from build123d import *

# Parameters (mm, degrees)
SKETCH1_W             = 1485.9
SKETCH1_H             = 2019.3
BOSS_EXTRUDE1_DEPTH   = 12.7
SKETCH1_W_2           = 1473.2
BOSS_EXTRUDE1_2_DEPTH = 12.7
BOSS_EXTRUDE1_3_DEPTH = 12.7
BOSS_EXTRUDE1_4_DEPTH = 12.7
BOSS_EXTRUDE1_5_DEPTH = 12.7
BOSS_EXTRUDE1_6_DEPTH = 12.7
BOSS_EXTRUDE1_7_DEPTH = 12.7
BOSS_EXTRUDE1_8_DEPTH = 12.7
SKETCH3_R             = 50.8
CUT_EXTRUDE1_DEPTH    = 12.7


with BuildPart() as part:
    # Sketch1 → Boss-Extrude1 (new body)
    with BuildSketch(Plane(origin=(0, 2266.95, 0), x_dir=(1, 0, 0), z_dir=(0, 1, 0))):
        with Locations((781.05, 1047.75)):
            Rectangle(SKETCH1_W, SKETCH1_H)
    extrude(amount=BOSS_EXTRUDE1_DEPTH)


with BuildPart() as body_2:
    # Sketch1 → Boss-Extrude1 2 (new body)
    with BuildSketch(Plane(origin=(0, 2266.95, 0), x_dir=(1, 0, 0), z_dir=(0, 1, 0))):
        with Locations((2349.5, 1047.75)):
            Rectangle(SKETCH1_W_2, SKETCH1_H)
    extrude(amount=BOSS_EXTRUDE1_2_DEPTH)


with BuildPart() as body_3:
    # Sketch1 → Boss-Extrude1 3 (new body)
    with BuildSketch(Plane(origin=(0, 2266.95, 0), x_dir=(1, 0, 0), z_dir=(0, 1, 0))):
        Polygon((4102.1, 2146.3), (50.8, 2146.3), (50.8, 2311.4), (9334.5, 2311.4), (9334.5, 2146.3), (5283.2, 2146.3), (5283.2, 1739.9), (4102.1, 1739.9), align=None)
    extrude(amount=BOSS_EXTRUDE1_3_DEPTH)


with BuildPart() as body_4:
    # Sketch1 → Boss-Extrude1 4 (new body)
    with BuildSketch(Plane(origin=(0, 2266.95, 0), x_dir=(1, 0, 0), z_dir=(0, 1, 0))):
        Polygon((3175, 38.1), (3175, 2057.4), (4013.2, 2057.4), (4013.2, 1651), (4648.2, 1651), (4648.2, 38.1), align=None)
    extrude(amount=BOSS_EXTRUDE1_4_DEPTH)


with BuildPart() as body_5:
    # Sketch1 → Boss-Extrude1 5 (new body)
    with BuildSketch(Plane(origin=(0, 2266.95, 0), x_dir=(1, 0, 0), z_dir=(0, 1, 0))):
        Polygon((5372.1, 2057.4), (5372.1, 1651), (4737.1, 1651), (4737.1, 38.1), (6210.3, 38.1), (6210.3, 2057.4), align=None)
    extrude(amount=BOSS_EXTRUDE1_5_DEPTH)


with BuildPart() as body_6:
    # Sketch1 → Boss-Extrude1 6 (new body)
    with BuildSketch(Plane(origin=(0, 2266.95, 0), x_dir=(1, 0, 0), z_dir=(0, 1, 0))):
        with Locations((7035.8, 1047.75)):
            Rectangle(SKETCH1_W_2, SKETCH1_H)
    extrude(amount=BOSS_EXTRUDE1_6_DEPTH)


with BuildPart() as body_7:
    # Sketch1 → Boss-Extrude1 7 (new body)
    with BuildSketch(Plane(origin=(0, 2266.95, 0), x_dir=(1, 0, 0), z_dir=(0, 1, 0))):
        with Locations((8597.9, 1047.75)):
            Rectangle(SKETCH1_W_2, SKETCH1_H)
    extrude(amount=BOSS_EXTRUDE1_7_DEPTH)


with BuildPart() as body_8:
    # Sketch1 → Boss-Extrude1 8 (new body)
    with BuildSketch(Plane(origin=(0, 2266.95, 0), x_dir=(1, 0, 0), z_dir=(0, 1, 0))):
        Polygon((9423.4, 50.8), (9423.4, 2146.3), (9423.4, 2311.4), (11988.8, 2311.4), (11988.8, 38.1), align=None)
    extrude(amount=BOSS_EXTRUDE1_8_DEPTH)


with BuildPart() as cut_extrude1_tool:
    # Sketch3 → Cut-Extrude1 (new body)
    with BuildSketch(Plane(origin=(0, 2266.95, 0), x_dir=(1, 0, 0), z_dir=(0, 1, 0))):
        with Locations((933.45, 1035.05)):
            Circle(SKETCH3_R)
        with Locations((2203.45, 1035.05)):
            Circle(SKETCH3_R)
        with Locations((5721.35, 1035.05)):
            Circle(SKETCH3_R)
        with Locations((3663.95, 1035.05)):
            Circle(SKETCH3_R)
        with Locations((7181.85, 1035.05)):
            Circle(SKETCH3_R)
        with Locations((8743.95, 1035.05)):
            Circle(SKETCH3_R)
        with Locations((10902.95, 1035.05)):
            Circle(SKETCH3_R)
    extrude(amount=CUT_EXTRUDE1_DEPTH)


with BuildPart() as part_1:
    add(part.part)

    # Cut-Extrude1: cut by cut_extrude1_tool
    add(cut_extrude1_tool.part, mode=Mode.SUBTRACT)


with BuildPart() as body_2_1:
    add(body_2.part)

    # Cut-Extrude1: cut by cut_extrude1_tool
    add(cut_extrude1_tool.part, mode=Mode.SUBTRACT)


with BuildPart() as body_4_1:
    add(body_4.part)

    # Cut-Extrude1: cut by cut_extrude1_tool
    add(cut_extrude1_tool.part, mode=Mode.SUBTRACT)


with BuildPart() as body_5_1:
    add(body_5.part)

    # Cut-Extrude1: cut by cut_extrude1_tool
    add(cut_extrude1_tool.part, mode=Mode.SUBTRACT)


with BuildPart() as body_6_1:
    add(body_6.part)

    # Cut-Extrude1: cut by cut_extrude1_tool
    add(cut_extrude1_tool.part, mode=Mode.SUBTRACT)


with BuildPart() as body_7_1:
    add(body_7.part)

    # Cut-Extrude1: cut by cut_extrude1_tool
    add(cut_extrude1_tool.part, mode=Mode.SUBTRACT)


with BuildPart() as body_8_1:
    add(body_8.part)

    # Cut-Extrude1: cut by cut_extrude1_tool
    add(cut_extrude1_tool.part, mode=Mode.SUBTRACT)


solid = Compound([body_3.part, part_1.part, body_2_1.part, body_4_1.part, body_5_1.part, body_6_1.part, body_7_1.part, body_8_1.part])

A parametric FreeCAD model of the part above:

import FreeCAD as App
import Part
import Sketcher

V = App.Vector
Q = App.Units.Quantity


def add_polygon(sketch, points):
    """Adds a closed chain of lines whose ends are joined by coincident constraints."""
    first, n = sketch.GeometryCount, len(points)
    for a, b in zip(points, points[1:] + points[:1]):
        sketch.addGeometry(Part.LineSegment(App.Vector(*a, 0), App.Vector(*b, 0)), False)
    for i in range(n):
        sketch.addConstraint(Sketcher.Constraint("Coincident", first + i, 2, first + (i + 1) % n, 1))

doc = App.newDocument("Part")
body = doc.addObject("PartDesign::Body", "Body")

sketch1 = body.newObject("Sketcher::SketchObject", "Sketch")
sketch1.AttachmentSupport = (doc.getObject("XZ_Plane"), [""])
sketch1.MapMode = "FlatFace"
sketch1.AttachmentOffset = App.Placement(V(0, 0, -89.25 * 25.4), App.Rotation())
add_polygon(sketch1, [(38.1, -2057.4), (38.1, -38.1), (1524, -38.1), (1524, -2057.4)])
sketch1.addConstraint(Sketcher.Constraint("Vertical", 0))
sketch1.addConstraint(Sketcher.Constraint("Horizontal", 1))
sketch1.addConstraint(Sketcher.Constraint("Vertical", 2))
sketch1.addConstraint(Sketcher.Constraint("Horizontal", 3))
sketch1.addConstraint(Sketcher.Constraint("DistanceX", 1, 1, 1, 2, Q("58.5 in")))
sketch1.addConstraint(Sketcher.Constraint("DistanceY", 0, 1, 0, 2, Q("79.5 in")))
sketch1.addConstraint(Sketcher.Constraint("DistanceX", -1, 1, 1, 2, Q("60 in")))
sketch1.addConstraint(Sketcher.Constraint("DistanceY", 2, 2, -1, 1, Q("81 in")))
pad1 = body.newObject("PartDesign::Pad", "Pad")
pad1.Profile = sketch1
pad1.Length = Q("0.5 in")
pad1.Reversed = True
body2 = doc.addObject("PartDesign::Body", "Body001")

sketch2 = body2.newObject("Sketcher::SketchObject", "Sketch001")
sketch2.AttachmentSupport = (doc.getObject("XZ_Plane001"), [""])
sketch2.MapMode = "FlatFace"
sketch2.AttachmentOffset = App.Placement(V(0, 0, -89.25 * 25.4), App.Rotation())
add_polygon(sketch2, [(1612.9, -2057.4), (1612.9, -38.1), (3086.1, -38.1), (3086.1, -2057.4)])
sketch2.addConstraint(Sketcher.Constraint("Vertical", 0))
sketch2.addConstraint(Sketcher.Constraint("Horizontal", 1))
sketch2.addConstraint(Sketcher.Constraint("Vertical", 2))
sketch2.addConstraint(Sketcher.Constraint("Horizontal", 3))
sketch2.addConstraint(Sketcher.Constraint("DistanceX", 1, 1, 1, 2, Q("58 in")))
sketch2.addConstraint(Sketcher.Constraint("DistanceY", 0, 1, 0, 2, Q("79.5 in")))
sketch2.addConstraint(Sketcher.Constraint("DistanceY", 2, 2, -1, 1, Q("81 in")))
sketch2.addConstraint(Sketcher.Constraint("DistanceX", -1, 1, 0, 2, Q("63.5 in")))
pad2 = body2.newObject("PartDesign::Pad", "Pad001")
pad2.Profile = sketch2
pad2.Length = Q("0.5 in")
pad2.Reversed = True
body3 = doc.addObject("PartDesign::Body", "Body002")

sketch3 = body3.newObject("Sketcher::SketchObject", "Sketch002")
sketch3.AttachmentSupport = (doc.getObject("XZ_Plane002"), [""])
sketch3.MapMode = "FlatFace"
sketch3.AttachmentOffset = App.Placement(V(0, 0, -89.25 * 25.4), App.Rotation())
add_polygon(sketch3, [(50.8, -2146.3), (4102.1, -2146.3), (4102.1, -1739.9), (5283.2, -1739.9), (5283.2, -2146.3), (9334.5, -2146.3), (9334.5, -2311.4), (50.8, -2311.4)])
sketch3.addConstraint(Sketcher.Constraint("Horizontal", 0))
sketch3.addConstraint(Sketcher.Constraint("Vertical", 1))
sketch3.addConstraint(Sketcher.Constraint("Horizontal", 2))
sketch3.addConstraint(Sketcher.Constraint("Vertical", 3))
sketch3.addConstraint(Sketcher.Constraint("Horizontal", 4))
sketch3.addConstraint(Sketcher.Constraint("Vertical", 5))
sketch3.addConstraint(Sketcher.Constraint("Horizontal", 6))
sketch3.addConstraint(Sketcher.Constraint("Vertical", 7))
sketch3.addConstraint(Sketcher.Constraint("Horizontal", 0, 2, 3, 2))
sketch3.addConstraint(Sketcher.Constraint("Equal", 0, 4))
sketch3.addConstraint(Sketcher.Constraint("DistanceY", 1, 1, 1, 2, Q("16 in")))
sketch3.addConstraint(Sketcher.Constraint("DistanceX", 0, 1, 0, 2, Q("159.5 in")))
sketch3.addConstraint(Sketcher.Constraint("DistanceX", 2, 1, 2, 2, Q("46.5 in")))
sketch3.addConstraint(Sketcher.Constraint("DistanceY", 5, 2, 5, 1, Q("6.5 in")))
sketch3.addConstraint(Sketcher.Constraint("DistanceX", -1, 1, 2, 2, Q("208 in")))
sketch3.addConstraint(Sketcher.Constraint("DistanceY", 5, 2, -1, 1, Q("91 in")))
pad3 = body3.newObject("PartDesign::Pad", "Pad002")
pad3.Profile = sketch3
pad3.Length = Q("0.5 in")
pad3.Reversed = True
body4 = doc.addObject("PartDesign::Body", "Body003")

sketch4 = body4.newObject("Sketcher::SketchObject", "Sketch003")
sketch4.AttachmentSupport = (doc.getObject("XZ_Plane003"), [""])
sketch4.MapMode = "FlatFace"
sketch4.AttachmentOffset = App.Placement(V(0, 0, -89.25 * 25.4), App.Rotation())
add_polygon(sketch4, [(3175, -2057.4), (3175, -38.1), (4648.2, -38.1), (4648.2, -1651), (4013.2, -1651), (4013.2, -2057.4)])
sketch4.addConstraint(Sketcher.Constraint("Vertical", 0))
sketch4.addConstraint(Sketcher.Constraint("Horizontal", 1))
sketch4.addConstraint(Sketcher.Constraint("Vertical", 2))
sketch4.addConstraint(Sketcher.Constraint("Horizontal", 3))
sketch4.addConstraint(Sketcher.Constraint("Vertical", 4))
sketch4.addConstraint(Sketcher.Constraint("Horizontal", 5))
sketch4.addConstraint(Sketcher.Constraint("DistanceX", 1, 1, 1, 2, Q("58 in")))
sketch4.addConstraint(Sketcher.Constraint("DistanceX", 3, 2, 3, 1, Q("25 in")))
sketch4.addConstraint(Sketcher.Constraint("DistanceY", 4, 2, 4, 1, Q("16 in")))
sketch4.addConstraint(Sketcher.Constraint("DistanceY", 0, 1, 0, 2, Q("79.5 in")))
sketch4.addConstraint(Sketcher.Constraint("DistanceX", -1, 1, 0, 2, Q("125 in")))
sketch4.addConstraint(Sketcher.Constraint("DistanceY", 2, 2, -1, 1, Q("65 in")))
pad4 = body4.newObject("PartDesign::Pad", "Pad003")
pad4.Profile = sketch4
pad4.Length = Q("0.5 in")
pad4.Reversed = True
body5 = doc.addObject("PartDesign::Body", "Body004")

sketch5 = body5.newObject("Sketcher::SketchObject", "Sketch004")
sketch5.AttachmentSupport = (doc.getObject("XZ_Plane004"), [""])
sketch5.MapMode = "FlatFace"
sketch5.AttachmentOffset = App.Placement(V(0, 0, -89.25 * 25.4), App.Rotation())
add_polygon(sketch5, [(5372.1, -2057.4), (5372.1, -1651), (4737.1, -1651), (4737.1, -38.1), (6210.3, -38.1), (6210.3, -2057.4)])
sketch5.addConstraint(Sketcher.Constraint("Vertical", 0))
sketch5.addConstraint(Sketcher.Constraint("Horizontal", 1))
sketch5.addConstraint(Sketcher.Constraint("Vertical", 2))
sketch5.addConstraint(Sketcher.Constraint("Horizontal", 3))
sketch5.addConstraint(Sketcher.Constraint("Vertical", 4))
sketch5.addConstraint(Sketcher.Constraint("Horizontal", 5))
sketch5.addConstraint(Sketcher.Constraint("DistanceX", 1, 2, 1, 1, Q("25 in")))
sketch5.addConstraint(Sketcher.Constraint("DistanceX", 3, 1, 3, 2, Q("58 in")))
sketch5.addConstraint(Sketcher.Constraint("DistanceY", 0, 1, 0, 2, Q("16 in")))
sketch5.addConstraint(Sketcher.Constraint("DistanceY", 2, 1, 2, 2, Q("63.5 in")))
sketch5.addConstraint(Sketcher.Constraint("DistanceY", 0, 2, -1, 1, Q("65 in")))
sketch5.addConstraint(Sketcher.Constraint("DistanceX", -1, 1, 0, 2, Q("211.5 in")))
pad5 = body5.newObject("PartDesign::Pad", "Pad004")
pad5.Profile = sketch5
pad5.Length = Q("0.5 in")
pad5.Reversed = True
body6 = doc.addObject("PartDesign::Body", "Body005")

sketch6 = body6.newObject("Sketcher::SketchObject", "Sketch005")
sketch6.AttachmentSupport = (doc.getObject("XZ_Plane005"), [""])
sketch6.MapMode = "FlatFace"
sketch6.AttachmentOffset = App.Placement(V(0, 0, -89.25 * 25.4), App.Rotation())
add_polygon(sketch6, [(6299.2, -2057.4), (6299.2, -38.1), (7772.4, -38.1), (7772.4, -2057.4)])
sketch6.addConstraint(Sketcher.Constraint("Vertical", 0))
sketch6.addConstraint(Sketcher.Constraint("Horizontal", 1))
sketch6.addConstraint(Sketcher.Constraint("Vertical", 2))
sketch6.addConstraint(Sketcher.Constraint("Horizontal", 3))
sketch6.addConstraint(Sketcher.Constraint("DistanceX", 1, 1, 1, 2, Q("58 in")))
sketch6.addConstraint(Sketcher.Constraint("DistanceY", 0, 1, 0, 2, Q("79.5 in")))
sketch6.addConstraint(Sketcher.Constraint("DistanceX", -1, 1, 0, 2, Q("248 in")))
sketch6.addConstraint(Sketcher.Constraint("DistanceY", 2, 2, -1, 1, Q("81 in")))
pad6 = body6.newObject("PartDesign::Pad", "Pad005")
pad6.Profile = sketch6
pad6.Length = Q("0.5 in")
pad6.Reversed = True
body7 = doc.addObject("PartDesign::Body", "Body006")

sketch7 = body7.newObject("Sketcher::SketchObject", "Sketch006")
sketch7.AttachmentSupport = (doc.getObject("XZ_Plane006"), [""])
sketch7.MapMode = "FlatFace"
sketch7.AttachmentOffset = App.Placement(V(0, 0, -89.25 * 25.4), App.Rotation())
add_polygon(sketch7, [(7861.3, -2057.4), (7861.3, -38.1), (9334.5, -38.1), (9334.5, -2057.4)])
sketch7.addConstraint(Sketcher.Constraint("Vertical", 0))
sketch7.addConstraint(Sketcher.Constraint("Horizontal", 1))
sketch7.addConstraint(Sketcher.Constraint("Vertical", 2))
sketch7.addConstraint(Sketcher.Constraint("Horizontal", 3))
sketch7.addConstraint(Sketcher.Constraint("DistanceX", 1, 1, 1, 2, Q("58 in")))
sketch7.addConstraint(Sketcher.Constraint("DistanceY", 0, 1, 0, 2, Q("79.5 in")))
sketch7.addConstraint(Sketcher.Constraint("DistanceY", 2, 2, -1, 1, Q("81 in")))
sketch7.addConstraint(Sketcher.Constraint("DistanceX", -1, 1, 0, 2, Q("309.5 in")))
pad7 = body7.newObject("PartDesign::Pad", "Pad006")
pad7.Profile = sketch7
pad7.Length = Q("0.5 in")
pad7.Reversed = True
body8 = doc.addObject("PartDesign::Body", "Body007")

sketch8 = body8.newObject("Sketcher::SketchObject", "Sketch007")
sketch8.AttachmentSupport = (doc.getObject("XZ_Plane007"), [""])
sketch8.MapMode = "FlatFace"
sketch8.AttachmentOffset = App.Placement(V(0, 0, -89.25 * 25.4), App.Rotation())
add_polygon(sketch8, [(9423.4, -2311.4), (9423.4, -50.8), (11988.8, -38.1), (11988.8, -2311.4)])
sketch8.addConstraint(Sketcher.Constraint("Vertical", 0))
sketch8.addConstraint(Sketcher.Constraint("Vertical", 2))
sketch8.addConstraint(Sketcher.Constraint("Horizontal", 3))
sketch8.addConstraint(Sketcher.Constraint("DistanceX", 3, 2, 3, 1, Q("101 in")))
sketch8.addConstraint(Sketcher.Constraint("DistanceY", 0, 1, 0, 2, Q("89 in")))
sketch8.addConstraint(Sketcher.Constraint("DistanceY", 2, 2, 2, 1, Q("89.5 in")))
sketch8.addConstraint(Sketcher.Constraint("DistanceX", -1, 1, 0, 2, Q("371 in")))
sketch8.addConstraint(Sketcher.Constraint("DistanceY", 0, 2, -1, 1, Q("2 in")))
pad8 = body8.newObject("PartDesign::Pad", "Pad007")
pad8.Profile = sketch8
pad8.Length = Q("0.5 in")
pad8.Reversed = True
body9 = doc.addObject("PartDesign::Body", "Body008")
body9.AllowCompound = True

sketch9 = body9.newObject("Sketcher::SketchObject", "Sketch008")
sketch9.AttachmentSupport = (doc.getObject("XZ_Plane008"), [""])
sketch9.MapMode = "FlatFace"
sketch9.AttachmentOffset = App.Placement(V(0, 0, -89.25 * 25.4), App.Rotation())
sketch9.addGeometry(Part.Circle(V(933.45, -1035.05, 0), V(0, 0, 1), 50.8), False)
sketch9.addGeometry(Part.Circle(V(2203.45, -1035.05, 0), V(0, 0, 1), 50.8), False)
sketch9.addGeometry(Part.Circle(V(5721.35, -1035.05, 0), V(0, 0, 1), 50.8), False)
sketch9.addGeometry(Part.Circle(V(3663.95, -1035.05, 0), V(0, 0, 1), 50.8), False)
sketch9.addGeometry(Part.Circle(V(7181.85, -1035.05, 0), V(0, 0, 1), 50.8), False)
sketch9.addGeometry(Part.Circle(V(8743.95, -1035.05, 0), V(0, 0, 1), 50.8), False)
sketch9.addGeometry(Part.Circle(V(10902.95, -1035.05, 0), V(0, 0, 1), 50.8), False)
sketch9.addConstraint(Sketcher.Constraint("Equal", 0, 1))
sketch9.addConstraint(Sketcher.Constraint("Equal", 1, 2))
sketch9.addConstraint(Sketcher.Constraint("Equal", 2, 3))
sketch9.addConstraint(Sketcher.Constraint("Equal", 3, 4))
sketch9.addConstraint(Sketcher.Constraint("Equal", 4, 5))
sketch9.addConstraint(Sketcher.Constraint("Equal", 5, 6))
sketch9.addConstraint(Sketcher.Constraint("Horizontal", 0, 3, 1, 3))
sketch9.addConstraint(Sketcher.Constraint("Horizontal", 1, 3, 2, 3))
sketch9.addConstraint(Sketcher.Constraint("Horizontal", 2, 3, 3, 3))
sketch9.addConstraint(Sketcher.Constraint("Horizontal", 3, 3, 4, 3))
sketch9.addConstraint(Sketcher.Constraint("Horizontal", 4, 3, 5, 3))
sketch9.addConstraint(Sketcher.Constraint("Horizontal", 5, 3, 6, 3))
sketch9.addConstraint(Sketcher.Constraint("Diameter", 0, Q("4 in")))
sketch9.addConstraint(Sketcher.Constraint("DistanceX", 0, 3, 1, 3, Q("50 in")))
sketch9.addConstraint(Sketcher.Constraint("DistanceX", 3, 3, 2, 3, Q("81 in")))
sketch9.addConstraint(Sketcher.Constraint("DistanceX", 1, 3, 4, 3, Q("196 in")))
sketch9.addConstraint(Sketcher.Constraint("DistanceX", 2, 3, 5, 3, Q("119 in")))
sketch9.addConstraint(Sketcher.Constraint("DistanceX", 5, 3, 6, 3, Q("85 in")))
sketch9.addConstraint(Sketcher.Constraint("DistanceX", 1, 3, 2, 3, Q("138.5 in")))
sketch9.addConstraint(Sketcher.Constraint("DistanceX", -1, 1, 0, 3, Q("36.75 in")))
sketch9.addConstraint(Sketcher.Constraint("DistanceY", 0, 3, -1, 1, Q("40.75 in")))
pad9 = body9.newObject("PartDesign::Pad", "Pad008")
pad9.Profile = sketch9
pad9.Length = Q("0.5 in")
pad9.Reversed = True
doc.recompute()

body10 = doc.addObject("PartDesign::Body", "Body009")
body10.BaseFeature = body9
boolean = body.newObject("PartDesign::Boolean", "Boolean")
boolean.Type = "Cut"
boolean.addObjects([body10])
doc.recompute()

body11 = doc.addObject("PartDesign::Body", "Body010")
body11.BaseFeature = body9
boolean2 = body2.newObject("PartDesign::Boolean", "Boolean001")
boolean2.Type = "Cut"
boolean2.addObjects([body11])
doc.recompute()

body12 = doc.addObject("PartDesign::Body", "Body011")
body12.BaseFeature = body9
boolean3 = body4.newObject("PartDesign::Boolean", "Boolean002")
boolean3.Type = "Cut"
boolean3.addObjects([body12])
doc.recompute()

body13 = doc.addObject("PartDesign::Body", "Body012")
body13.BaseFeature = body9
boolean4 = body5.newObject("PartDesign::Boolean", "Boolean003")
boolean4.Type = "Cut"
boolean4.addObjects([body13])
doc.recompute()

body14 = doc.addObject("PartDesign::Body", "Body013")
body14.BaseFeature = body9
boolean5 = body6.newObject("PartDesign::Boolean", "Boolean004")
boolean5.Type = "Cut"
boolean5.addObjects([body14])
doc.recompute()

body15 = doc.addObject("PartDesign::Body", "Body014")
body15.BaseFeature = body9
boolean6 = body7.newObject("PartDesign::Boolean", "Boolean005")
boolean6.Type = "Cut"
boolean6.addObjects([body15])
doc.recompute()

boolean7 = body8.newObject("PartDesign::Boolean", "Boolean006")
boolean7.Type = "Cut"
boolean7.addObjects([body9])

doc.recompute()
